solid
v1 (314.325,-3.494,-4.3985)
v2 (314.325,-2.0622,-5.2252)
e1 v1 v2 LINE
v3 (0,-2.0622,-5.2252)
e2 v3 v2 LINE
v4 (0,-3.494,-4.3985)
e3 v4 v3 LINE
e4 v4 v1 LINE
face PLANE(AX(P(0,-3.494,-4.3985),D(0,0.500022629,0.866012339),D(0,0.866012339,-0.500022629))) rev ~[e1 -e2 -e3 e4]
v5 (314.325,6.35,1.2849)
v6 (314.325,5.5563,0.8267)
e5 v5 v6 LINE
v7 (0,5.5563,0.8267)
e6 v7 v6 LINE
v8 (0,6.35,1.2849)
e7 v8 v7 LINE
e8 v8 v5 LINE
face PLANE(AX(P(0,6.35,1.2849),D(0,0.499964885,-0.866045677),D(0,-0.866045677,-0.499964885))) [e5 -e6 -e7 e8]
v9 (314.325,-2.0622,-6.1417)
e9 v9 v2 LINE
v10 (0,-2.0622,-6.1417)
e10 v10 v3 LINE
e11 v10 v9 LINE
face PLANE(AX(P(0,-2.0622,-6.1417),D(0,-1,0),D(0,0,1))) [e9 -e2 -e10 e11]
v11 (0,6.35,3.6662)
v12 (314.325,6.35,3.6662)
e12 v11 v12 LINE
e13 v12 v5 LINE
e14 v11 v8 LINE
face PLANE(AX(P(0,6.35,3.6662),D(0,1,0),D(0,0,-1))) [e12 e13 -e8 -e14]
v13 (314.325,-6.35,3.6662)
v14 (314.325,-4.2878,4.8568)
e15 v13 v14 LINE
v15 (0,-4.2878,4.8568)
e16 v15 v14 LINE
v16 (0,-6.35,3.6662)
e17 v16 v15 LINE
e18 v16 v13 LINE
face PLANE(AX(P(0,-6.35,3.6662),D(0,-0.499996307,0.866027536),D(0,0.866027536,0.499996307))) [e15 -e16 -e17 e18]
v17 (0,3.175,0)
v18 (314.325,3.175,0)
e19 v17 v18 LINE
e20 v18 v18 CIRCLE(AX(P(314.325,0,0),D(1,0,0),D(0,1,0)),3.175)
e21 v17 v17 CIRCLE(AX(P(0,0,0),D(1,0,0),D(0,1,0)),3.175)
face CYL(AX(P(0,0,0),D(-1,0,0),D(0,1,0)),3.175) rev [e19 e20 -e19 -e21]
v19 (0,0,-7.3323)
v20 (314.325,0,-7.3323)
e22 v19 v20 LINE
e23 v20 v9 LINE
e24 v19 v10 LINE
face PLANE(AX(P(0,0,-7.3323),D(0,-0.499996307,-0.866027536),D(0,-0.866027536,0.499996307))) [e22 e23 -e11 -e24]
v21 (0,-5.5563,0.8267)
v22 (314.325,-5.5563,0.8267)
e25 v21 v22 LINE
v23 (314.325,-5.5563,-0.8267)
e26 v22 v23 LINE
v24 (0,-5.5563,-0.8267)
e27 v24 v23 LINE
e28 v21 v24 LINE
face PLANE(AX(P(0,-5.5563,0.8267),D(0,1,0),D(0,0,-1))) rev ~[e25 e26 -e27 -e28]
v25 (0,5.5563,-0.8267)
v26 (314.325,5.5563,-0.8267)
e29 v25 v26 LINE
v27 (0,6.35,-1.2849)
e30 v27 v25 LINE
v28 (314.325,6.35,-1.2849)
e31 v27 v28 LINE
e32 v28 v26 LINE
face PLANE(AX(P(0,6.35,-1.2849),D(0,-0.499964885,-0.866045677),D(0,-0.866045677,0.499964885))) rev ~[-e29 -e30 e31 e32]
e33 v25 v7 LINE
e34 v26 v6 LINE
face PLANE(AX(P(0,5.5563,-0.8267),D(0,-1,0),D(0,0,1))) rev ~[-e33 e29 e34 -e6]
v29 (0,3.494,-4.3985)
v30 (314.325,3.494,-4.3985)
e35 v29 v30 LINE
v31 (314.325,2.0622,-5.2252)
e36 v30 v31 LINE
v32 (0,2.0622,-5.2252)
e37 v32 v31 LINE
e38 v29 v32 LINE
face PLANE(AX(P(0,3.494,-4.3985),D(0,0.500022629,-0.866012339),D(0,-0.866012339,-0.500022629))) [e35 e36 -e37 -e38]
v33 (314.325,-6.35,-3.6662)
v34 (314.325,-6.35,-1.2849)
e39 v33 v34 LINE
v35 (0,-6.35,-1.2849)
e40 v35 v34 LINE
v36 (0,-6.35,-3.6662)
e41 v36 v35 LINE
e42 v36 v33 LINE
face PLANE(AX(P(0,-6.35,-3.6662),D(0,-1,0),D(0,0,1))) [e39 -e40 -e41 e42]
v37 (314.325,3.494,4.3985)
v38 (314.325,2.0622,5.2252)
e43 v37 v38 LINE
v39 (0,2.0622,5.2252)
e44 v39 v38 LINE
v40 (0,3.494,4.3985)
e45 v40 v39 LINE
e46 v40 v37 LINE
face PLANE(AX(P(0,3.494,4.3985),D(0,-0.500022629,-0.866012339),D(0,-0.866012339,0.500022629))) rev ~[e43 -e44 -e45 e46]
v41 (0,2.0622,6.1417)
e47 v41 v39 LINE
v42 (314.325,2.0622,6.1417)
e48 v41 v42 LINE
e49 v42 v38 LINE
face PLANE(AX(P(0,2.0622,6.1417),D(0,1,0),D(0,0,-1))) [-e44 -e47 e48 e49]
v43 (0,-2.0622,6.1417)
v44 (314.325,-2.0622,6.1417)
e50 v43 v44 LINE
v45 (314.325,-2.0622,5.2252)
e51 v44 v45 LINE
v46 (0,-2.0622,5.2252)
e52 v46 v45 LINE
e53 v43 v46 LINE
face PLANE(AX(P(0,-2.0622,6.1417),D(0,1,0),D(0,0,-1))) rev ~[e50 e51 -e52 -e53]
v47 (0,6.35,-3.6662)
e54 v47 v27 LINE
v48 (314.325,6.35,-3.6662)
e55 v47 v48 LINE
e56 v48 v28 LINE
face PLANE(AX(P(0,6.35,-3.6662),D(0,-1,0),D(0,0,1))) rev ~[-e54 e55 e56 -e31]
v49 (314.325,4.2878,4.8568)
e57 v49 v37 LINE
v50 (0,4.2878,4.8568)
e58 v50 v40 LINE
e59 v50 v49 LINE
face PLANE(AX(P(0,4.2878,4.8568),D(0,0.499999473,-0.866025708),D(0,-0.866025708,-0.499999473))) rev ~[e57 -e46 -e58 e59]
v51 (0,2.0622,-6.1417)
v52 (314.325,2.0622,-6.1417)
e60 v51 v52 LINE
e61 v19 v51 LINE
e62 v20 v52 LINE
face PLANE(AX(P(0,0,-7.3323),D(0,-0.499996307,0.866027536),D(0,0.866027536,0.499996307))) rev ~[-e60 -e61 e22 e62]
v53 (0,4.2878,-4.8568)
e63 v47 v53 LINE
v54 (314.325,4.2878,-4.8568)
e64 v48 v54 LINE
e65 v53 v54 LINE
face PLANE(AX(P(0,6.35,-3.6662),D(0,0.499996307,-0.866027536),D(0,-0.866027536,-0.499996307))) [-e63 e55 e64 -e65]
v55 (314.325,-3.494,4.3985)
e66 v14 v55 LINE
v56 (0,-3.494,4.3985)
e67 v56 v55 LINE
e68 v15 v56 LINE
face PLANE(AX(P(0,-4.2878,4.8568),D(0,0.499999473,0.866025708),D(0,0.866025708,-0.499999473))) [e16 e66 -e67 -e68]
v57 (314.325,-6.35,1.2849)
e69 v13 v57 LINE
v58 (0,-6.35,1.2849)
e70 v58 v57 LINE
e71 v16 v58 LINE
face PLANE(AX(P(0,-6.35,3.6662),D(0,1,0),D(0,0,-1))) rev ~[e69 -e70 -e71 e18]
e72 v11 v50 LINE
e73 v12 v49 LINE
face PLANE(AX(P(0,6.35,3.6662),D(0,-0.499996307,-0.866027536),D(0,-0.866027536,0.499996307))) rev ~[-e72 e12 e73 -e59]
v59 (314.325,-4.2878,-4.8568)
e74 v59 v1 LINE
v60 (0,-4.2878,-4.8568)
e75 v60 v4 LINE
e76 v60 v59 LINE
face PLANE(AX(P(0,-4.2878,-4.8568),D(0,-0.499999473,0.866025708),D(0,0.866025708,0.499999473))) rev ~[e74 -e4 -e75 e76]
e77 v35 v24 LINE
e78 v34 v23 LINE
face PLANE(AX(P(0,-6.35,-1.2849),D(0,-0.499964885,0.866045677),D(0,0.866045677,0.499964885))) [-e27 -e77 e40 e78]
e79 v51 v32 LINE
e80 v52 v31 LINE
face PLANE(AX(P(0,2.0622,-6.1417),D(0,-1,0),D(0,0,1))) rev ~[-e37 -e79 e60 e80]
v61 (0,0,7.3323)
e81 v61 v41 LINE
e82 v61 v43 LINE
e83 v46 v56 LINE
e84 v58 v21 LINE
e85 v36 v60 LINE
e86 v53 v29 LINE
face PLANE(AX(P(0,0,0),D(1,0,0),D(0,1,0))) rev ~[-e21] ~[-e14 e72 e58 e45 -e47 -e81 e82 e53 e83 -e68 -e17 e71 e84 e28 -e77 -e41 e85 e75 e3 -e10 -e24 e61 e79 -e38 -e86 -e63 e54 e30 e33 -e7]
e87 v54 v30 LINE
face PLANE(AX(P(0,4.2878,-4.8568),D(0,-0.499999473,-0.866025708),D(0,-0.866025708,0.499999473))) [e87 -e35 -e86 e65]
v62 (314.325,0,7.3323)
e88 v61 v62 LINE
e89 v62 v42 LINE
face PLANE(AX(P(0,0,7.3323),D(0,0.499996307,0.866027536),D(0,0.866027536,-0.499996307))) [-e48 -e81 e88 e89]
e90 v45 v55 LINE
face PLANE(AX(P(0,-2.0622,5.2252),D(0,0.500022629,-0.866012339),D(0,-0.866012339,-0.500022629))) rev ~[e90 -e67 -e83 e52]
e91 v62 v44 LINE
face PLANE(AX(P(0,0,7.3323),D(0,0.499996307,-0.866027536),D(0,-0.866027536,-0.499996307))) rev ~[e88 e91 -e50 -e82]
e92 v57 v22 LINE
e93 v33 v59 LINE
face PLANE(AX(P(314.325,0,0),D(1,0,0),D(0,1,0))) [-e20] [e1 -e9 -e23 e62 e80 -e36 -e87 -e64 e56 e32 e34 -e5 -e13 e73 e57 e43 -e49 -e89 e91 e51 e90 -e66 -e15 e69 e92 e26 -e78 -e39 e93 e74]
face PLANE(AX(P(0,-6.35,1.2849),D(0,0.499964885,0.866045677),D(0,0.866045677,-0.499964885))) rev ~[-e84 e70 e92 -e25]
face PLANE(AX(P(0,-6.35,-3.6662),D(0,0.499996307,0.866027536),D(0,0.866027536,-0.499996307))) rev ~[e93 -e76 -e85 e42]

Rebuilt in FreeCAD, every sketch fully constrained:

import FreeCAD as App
import Part
import Sketcher
Q = App.Units.Quantity

doc = App.newDocument("Part")
body = doc.addObject("PartDesign::Body", "Body")

# Sketch on YZ plane
sketch1 = body.newObject("Sketcher::SketchObject", "Sketch")
sketch1.AttachmentSupport = (doc.getObject("YZ_Plane"), [""])
sketch1.MapMode = "FlatFace"
sketch1.addGeometry([
    Part.LineSegment(App.Vector(6.3, 1.3, 0), App.Vector(6.3, 3.7, 0)),  # 0
    Part.LineSegment(App.Vector(6.3, 3.7, 0), App.Vector(4.3, 4.9, 0)),  # 1
    Part.LineSegment(App.Vector(4.3, 4.9, 0), App.Vector(3.5, 4.4, 0)),  # 2
    Part.LineSegment(App.Vector(3.5, 4.4, 0), App.Vector(2.1, 5.2, 0)),  # 3
    Part.LineSegment(App.Vector(2.1, 5.2, 0), App.Vector(2.1, 6.1, 0)),  # 4
    Part.LineSegment(App.Vector(2.1, 6.1, 0), App.Vector(0, 7.3, 0)),  # 5
    Part.LineSegment(App.Vector(0, 7.3, 0), App.Vector(-2.1, 6.1, 0)),  # 6
    Part.LineSegment(App.Vector(-2.1, 6.1, 0), App.Vector(-2.1, 5.2, 0)),  # 7
    Part.LineSegment(App.Vector(-2.1, 5.2, 0), App.Vector(-3.5, 4.4, 0)),  # 8
    Part.LineSegment(App.Vector(-3.5, 4.4, 0), App.Vector(-4.3, 4.9, 0)),  # 9
    Part.LineSegment(App.Vector(-4.3, 4.9, 0), App.Vector(-6.3, 3.7, 0)),  # 10
    Part.LineSegment(App.Vector(-6.3, 3.7, 0), App.Vector(-6.3, 1.3, 0)),  # 11
    Part.LineSegment(App.Vector(-6.3, 1.3, 0), App.Vector(-5.6, 0.8, 0)),  # 12
    Part.LineSegment(App.Vector(-5.6, 0.8, 0), App.Vector(-5.6, -0.8, 0)),  # 13
    Part.LineSegment(App.Vector(-5.6, -0.8, 0), App.Vector(-6.3, -1.3, 0)),  # 14
    Part.LineSegment(App.Vector(-6.3, -1.3, 0), App.Vector(-6.3, -3.7, 0)),  # 15
    Part.LineSegment(App.Vector(-6.3, -3.7, 0), App.Vector(-4.3, -4.9, 0)),  # 16
    Part.LineSegment(App.Vector(-4.3, -4.9, 0), App.Vector(-3.5, -4.4, 0)),  # 17
    Part.LineSegment(App.Vector(-3.5, -4.4, 0), App.Vector(-2.1, -5.2, 0)),  # 18
    Part.LineSegment(App.Vector(-2.1, -5.2, 0), App.Vector(-2.1, -6.1, 0)),  # 19
    Part.LineSegment(App.Vector(-2.1, -6.1, 0), App.Vector(0, -7.3, 0)),  # 20
    Part.LineSegment(App.Vector(0, -7.3, 0), App.Vector(2.1, -6.1, 0)),  # 21
    Part.LineSegment(App.Vector(2.1, -6.1, 0), App.Vector(2.1, -5.2, 0)),  # 22
    Part.LineSegment(App.Vector(2.1, -5.2, 0), App.Vector(3.5, -4.4, 0)),  # 23
    Part.LineSegment(App.Vector(3.5, -4.4, 0), App.Vector(4.3, -4.9, 0)),  # 24
    Part.LineSegment(App.Vector(4.3, -4.9, 0), App.Vector(6.3, -3.7, 0)),  # 25
    Part.LineSegment(App.Vector(6.3, -3.7, 0), App.Vector(6.3, -1.3, 0)),  # 26
    Part.LineSegment(App.Vector(6.3, -1.3, 0), App.Vector(5.6, -0.8, 0)),  # 27
    Part.LineSegment(App.Vector(5.6, -0.8, 0), App.Vector(5.6, 0.8, 0)),  # 28
    Part.LineSegment(App.Vector(5.6, 0.8, 0), App.Vector(6.3, 1.3, 0)),  # 29
    Part.Circle(App.Vector(0, 0, 0), App.Vector(0, 0, 1), 3.2),  # 30
], False)
sketch1.addConstraint([
    Sketcher.Constraint("Coincident", 0, 2, 1, 1),
    Sketcher.Constraint("Coincident", 1, 2, 2, 1),
    Sketcher.Constraint("Coincident", 2, 2, 3, 1),
    Sketcher.Constraint("Coincident", 3, 2, 4, 1),
    Sketcher.Constraint("Coincident", 4, 2, 5, 1),
    Sketcher.Constraint("Coincident", 5, 2, 6, 1),
    Sketcher.Constraint("Coincident", 6, 2, 7, 1),
    Sketcher.Constraint("Coincident", 7, 2, 8, 1),
    Sketcher.Constraint("Coincident", 8, 2, 9, 1),
    Sketcher.Constraint("Coincident", 9, 2, 10, 1),
    Sketcher.Constraint("Coincident", 10, 2, 11, 1),
    Sketcher.Constraint("Coincident", 11, 2, 12, 1),
    Sketcher.Constraint("Coincident", 12, 2, 13, 1),
    Sketcher.Constraint("Coincident", 13, 2, 14, 1),
    Sketcher.Constraint("Coincident", 14, 2, 15, 1),
    Sketcher.Constraint("Coincident", 15, 2, 16, 1),
    Sketcher.Constraint("Coincident", 16, 2, 17, 1),
    Sketcher.Constraint("Coincident", 17, 2, 18, 1),
    Sketcher.Constraint("Coincident", 18, 2, 19, 1),
    Sketcher.Constraint("Coincident", 19, 2, 20, 1),
    Sketcher.Constraint("Coincident", 20, 2, 21, 1),
    Sketcher.Constraint("Coincident", 21, 2, 22, 1),
    Sketcher.Constraint("Coincident", 22, 2, 23, 1),
    Sketcher.Constraint("Coincident", 23, 2, 24, 1),
    Sketcher.Constraint("Coincident", 24, 2, 25, 1),
    Sketcher.Constraint("Coincident", 25, 2, 26, 1),
    Sketcher.Constraint("Coincident", 26, 2, 27, 1),
    Sketcher.Constraint("Coincident", 27, 2, 28, 1),
    Sketcher.Constraint("Coincident", 28, 2, 29, 1),
    Sketcher.Constraint("Coincident", 29, 2, 0, 1),
    Sketcher.Constraint("Vertical", 0),
    Sketcher.Constraint("Vertical", 4),
    Sketcher.Constraint("Vertical", 7),
    Sketcher.Constraint("Vertical", 11),
    Sketcher.Constraint("Vertical", 13),
    Sketcher.Constraint("Vertical", 15),
    Sketcher.Constraint("Vertical", 19),
    Sketcher.Constraint("Vertical", 22),
    Sketcher.Constraint("Vertical", 26),
    Sketcher.Constraint("Vertical", 28),
    Sketcher.Constraint("Coincident", 30, 3, -1, 1),
    Sketcher.Constraint("Symmetric", 0, 2, 15, 2, -1, 1),
    Sketcher.Constraint("Symmetric", 1, 2, 16, 2, -1, 1),
    Sketcher.Constraint("Symmetric", 2, 2, 17, 2, -1, 1),
    Sketcher.Constraint("Symmetric", 3, 2, 18, 2, -1, 1),
    Sketcher.Constraint("Symmetric", 5, 2, 20, 2, -1, 1),
    Sketcher.Constraint("Symmetric", 6, 2, 21, 2, -1, 1),
    Sketcher.Constraint("Symmetric", 8, 2, 23, 2, -1, 1),
    Sketcher.Constraint("Symmetric", 9, 2, 24, 2, -1, 1),
    Sketcher.Constraint("Symmetric", 10, 2, 25, 2, -1, 1),
    Sketcher.Constraint("Symmetric", 12, 2, 27, 2, -1, 1),
    Sketcher.Constraint("Symmetric", 4, 2, 6, 2, -2),
    Sketcher.Constraint("Symmetric", 2, 2, 8, 2, -2),
    Sketcher.Constraint("Symmetric", 1, 2, 9, 2, -2),
    Sketcher.Constraint("Symmetric", 0, 2, 10, 2, -2),
    Sketcher.Constraint("PointOnObject", 5, 2, -2),
    Sketcher.Constraint("Parallel", 1, 3),
    Sketcher.Constraint("Parallel", 3, 5),
    Sketcher.Constraint("Parallel", 2, 6),
    Sketcher.Constraint("Parallel", 6, 8),
    Sketcher.Constraint("Parallel", 9, 12),
    Sketcher.Constraint("Parallel", 10, 14),
    Sketcher.Constraint("Parallel", 18, 20),
    Sketcher.Constraint("Parallel", 21, 23),
    Sketcher.Constraint("Parallel", 24, 27),
    Sketcher.Constraint("Parallel", 25, 29),
    Sketcher.Constraint("Horizontal", 14, 2, 26, 2),
    Sketcher.Constraint("Horizontal", 12, 2, 28, 2),
    Sketcher.Constraint("Equal", 1, 5),
    Sketcher.Constraint("Equal", 9, 12),
    Sketcher.Constraint("Diameter", 30, Q("0.25 in")),
    Sketcher.Constraint("Angle", 1, Q("150.0002 deg")),
    Sketcher.Constraint("DistanceY", 0, 1, 0, 2, Q("0.093752 in")),
    Sketcher.Constraint("DistanceX", -1, 1, 0, 2, Q("0.25 in")),
    Sketcher.Constraint("Distance", 1, Q("0.093748 in")),
    Sketcher.Constraint("DistanceX", 2, 2, 1, 2, Q("0.031252 in")),
    Sketcher.Constraint("DistanceY", 13, 2, 13, 1, Q("0.0651 in")),
    Sketcher.Constraint("DistanceY", 4, 1, 4, 2, Q("0.9165 mm")),
])
pad1 = body.newObject("PartDesign::Pad", "Pad")
pad1.Profile = sketch1
pad1.Length = Q("12.375 in")

doc.recompute()
